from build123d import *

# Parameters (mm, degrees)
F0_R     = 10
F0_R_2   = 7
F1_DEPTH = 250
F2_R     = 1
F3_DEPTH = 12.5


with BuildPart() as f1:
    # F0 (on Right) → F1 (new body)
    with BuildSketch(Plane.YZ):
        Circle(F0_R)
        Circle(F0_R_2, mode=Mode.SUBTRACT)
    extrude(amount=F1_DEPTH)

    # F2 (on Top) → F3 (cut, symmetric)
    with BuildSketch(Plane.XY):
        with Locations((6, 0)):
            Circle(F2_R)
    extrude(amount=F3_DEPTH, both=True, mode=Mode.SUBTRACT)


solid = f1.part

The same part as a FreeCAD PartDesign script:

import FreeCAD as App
import Part
import Sketcher

doc = App.newDocument("Part")
body = doc.addObject("PartDesign::Body", "Body")

sketch1 = doc.addObject("Sketcher::SketchObject", "Sketch")
body.addObject(sketch1)
sketch1.AttachmentSupport = (doc.YZ_Plane, [""])
sketch1.MapMode = "FlatFace"
sketch1.addGeometry([
    Part.Circle(App.Vector(0, 0, 0), App.Vector(0, 0, 1), 10),
    Part.Circle(App.Vector(0, 0, 0), App.Vector(0, 0, 1), 7),
], False)
sketch1.addConstraint([
    Sketcher.Constraint("Coincident", 0, 3, -1, 1),
    Sketcher.Constraint("Coincident", 1, 3, -1, 1),
    Sketcher.Constraint("Diameter", 0, 20.0),
    Sketcher.Constraint("Diameter", 1, 14.0),
])
pad1 = doc.addObject("PartDesign::Pad", "Pad")
body.addObject(pad1)
pad1.Profile = sketch1
pad1.Length = 250

sketch2 = doc.addObject("Sketcher::SketchObject", "Sketch001")
body.addObject(sketch2)
sketch2.AttachmentSupport = (doc.XY_Plane, [""])
sketch2.MapMode = "FlatFace"
sketch2.addGeometry(Part.Circle(App.Vector(6, 0, 0), App.Vector(0, 0, 1), 1), False)
sketch2.addConstraint([
    Sketcher.Constraint("PointOnObject", 0, 3, -1),
    Sketcher.Constraint("Diameter", 0, 2.0),
    Sketcher.Constraint("DistanceX", -1, 1, 0, 3, 6.0),
])
pocket1 = doc.addObject("PartDesign::Pocket", "Pocket")
body.addObject(pocket1)
pocket1.Profile = sketch2
pocket1.Length = 25
pocket1.Midplane = True

doc.recompute()
